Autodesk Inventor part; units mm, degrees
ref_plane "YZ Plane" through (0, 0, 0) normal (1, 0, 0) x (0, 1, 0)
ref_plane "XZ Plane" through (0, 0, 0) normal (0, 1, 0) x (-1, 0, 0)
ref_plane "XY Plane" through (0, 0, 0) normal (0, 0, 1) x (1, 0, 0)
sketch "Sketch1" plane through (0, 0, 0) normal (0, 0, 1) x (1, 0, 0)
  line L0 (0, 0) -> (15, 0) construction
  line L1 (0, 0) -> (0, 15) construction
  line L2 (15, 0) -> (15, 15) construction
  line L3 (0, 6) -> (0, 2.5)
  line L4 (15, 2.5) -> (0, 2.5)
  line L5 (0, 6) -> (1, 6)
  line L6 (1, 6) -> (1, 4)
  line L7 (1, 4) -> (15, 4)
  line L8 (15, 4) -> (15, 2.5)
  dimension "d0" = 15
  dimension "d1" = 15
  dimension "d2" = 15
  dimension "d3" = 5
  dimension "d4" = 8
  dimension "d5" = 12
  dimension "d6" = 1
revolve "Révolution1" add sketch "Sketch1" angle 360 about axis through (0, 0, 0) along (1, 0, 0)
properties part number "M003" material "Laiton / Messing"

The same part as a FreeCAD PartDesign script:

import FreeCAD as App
import Part
import Sketcher

doc = App.newDocument("Part")
body = doc.addObject("PartDesign::Body", "Body")

# Sketch on XY plane
sketch1 = doc.addObject("Sketcher::SketchObject", "Sketch")
body.addObject(sketch1)
sketch1.AttachmentSupport = (doc.XY_Plane, [""])
sketch1.MapMode = "FlatFace"
sketch1.addGeometry(Part.LineSegment(App.Vector(1, 6, 0), App.Vector(0, 6, 0)), False)
sketch1.addGeometry(Part.LineSegment(App.Vector(0, 6, 0), App.Vector(0, 2.5, 0)), False)
sketch1.addGeometry(Part.LineSegment(App.Vector(0, 2.5, 0), App.Vector(15, 2.5, 0)), False)
sketch1.addGeometry(Part.LineSegment(App.Vector(15, 2.5, 0), App.Vector(15, 4, 0)), False)
sketch1.addGeometry(Part.LineSegment(App.Vector(15, 4, 0), App.Vector(1, 4, 0)), False)
sketch1.addGeometry(Part.LineSegment(App.Vector(1, 4, 0), App.Vector(1, 6, 0)), False)
sketch1.addConstraint(Sketcher.Constraint("Coincident", 0, 2, 1, 1))
sketch1.addConstraint(Sketcher.Constraint("Coincident", 1, 2, 2, 1))
sketch1.addConstraint(Sketcher.Constraint("Coincident", 2, 2, 3, 1))
sketch1.addConstraint(Sketcher.Constraint("Coincident", 3, 2, 4, 1))
sketch1.addConstraint(Sketcher.Constraint("Coincident", 4, 2, 5, 1))
sketch1.addConstraint(Sketcher.Constraint("Coincident", 5, 2, 0, 1))
sketch1.addConstraint(Sketcher.Constraint("Horizontal", 0))
sketch1.addConstraint(Sketcher.Constraint("Vertical", 1))
sketch1.addConstraint(Sketcher.Constraint("Horizontal", 2))
sketch1.addConstraint(Sketcher.Constraint("Vertical", 3))
sketch1.addConstraint(Sketcher.Constraint("Horizontal", 4))
sketch1.addConstraint(Sketcher.Constraint("Vertical", 5))
sketch1.addConstraint(Sketcher.Constraint("PointOnObject", 0, 2, -2))
sketch1.addConstraint(Sketcher.Constraint("DistanceX", 0, 2, 0, 1, 1.0))
sketch1.addConstraint(Sketcher.Constraint("DistanceX", 2, 1, 2, 2, 15.0))
sketch1.addConstraint(Sketcher.Constraint("DistanceY", 5, 1, 5, 2, 2.0))
sketch1.addConstraint(Sketcher.Constraint("DistanceY", 1, 2, 1, 1, 3.5))
sketch1.addConstraint(Sketcher.Constraint("DistanceY", -1, 1, 0, 2, 6.0))
revolution = doc.addObject("PartDesign::Revolution", "Revolution")
body.addObject(revolution)
revolution.Profile = sketch1
revolution.ReferenceAxis = (sketch1, ["H_Axis"])
revolution.Angle = 360

doc.recompute()
